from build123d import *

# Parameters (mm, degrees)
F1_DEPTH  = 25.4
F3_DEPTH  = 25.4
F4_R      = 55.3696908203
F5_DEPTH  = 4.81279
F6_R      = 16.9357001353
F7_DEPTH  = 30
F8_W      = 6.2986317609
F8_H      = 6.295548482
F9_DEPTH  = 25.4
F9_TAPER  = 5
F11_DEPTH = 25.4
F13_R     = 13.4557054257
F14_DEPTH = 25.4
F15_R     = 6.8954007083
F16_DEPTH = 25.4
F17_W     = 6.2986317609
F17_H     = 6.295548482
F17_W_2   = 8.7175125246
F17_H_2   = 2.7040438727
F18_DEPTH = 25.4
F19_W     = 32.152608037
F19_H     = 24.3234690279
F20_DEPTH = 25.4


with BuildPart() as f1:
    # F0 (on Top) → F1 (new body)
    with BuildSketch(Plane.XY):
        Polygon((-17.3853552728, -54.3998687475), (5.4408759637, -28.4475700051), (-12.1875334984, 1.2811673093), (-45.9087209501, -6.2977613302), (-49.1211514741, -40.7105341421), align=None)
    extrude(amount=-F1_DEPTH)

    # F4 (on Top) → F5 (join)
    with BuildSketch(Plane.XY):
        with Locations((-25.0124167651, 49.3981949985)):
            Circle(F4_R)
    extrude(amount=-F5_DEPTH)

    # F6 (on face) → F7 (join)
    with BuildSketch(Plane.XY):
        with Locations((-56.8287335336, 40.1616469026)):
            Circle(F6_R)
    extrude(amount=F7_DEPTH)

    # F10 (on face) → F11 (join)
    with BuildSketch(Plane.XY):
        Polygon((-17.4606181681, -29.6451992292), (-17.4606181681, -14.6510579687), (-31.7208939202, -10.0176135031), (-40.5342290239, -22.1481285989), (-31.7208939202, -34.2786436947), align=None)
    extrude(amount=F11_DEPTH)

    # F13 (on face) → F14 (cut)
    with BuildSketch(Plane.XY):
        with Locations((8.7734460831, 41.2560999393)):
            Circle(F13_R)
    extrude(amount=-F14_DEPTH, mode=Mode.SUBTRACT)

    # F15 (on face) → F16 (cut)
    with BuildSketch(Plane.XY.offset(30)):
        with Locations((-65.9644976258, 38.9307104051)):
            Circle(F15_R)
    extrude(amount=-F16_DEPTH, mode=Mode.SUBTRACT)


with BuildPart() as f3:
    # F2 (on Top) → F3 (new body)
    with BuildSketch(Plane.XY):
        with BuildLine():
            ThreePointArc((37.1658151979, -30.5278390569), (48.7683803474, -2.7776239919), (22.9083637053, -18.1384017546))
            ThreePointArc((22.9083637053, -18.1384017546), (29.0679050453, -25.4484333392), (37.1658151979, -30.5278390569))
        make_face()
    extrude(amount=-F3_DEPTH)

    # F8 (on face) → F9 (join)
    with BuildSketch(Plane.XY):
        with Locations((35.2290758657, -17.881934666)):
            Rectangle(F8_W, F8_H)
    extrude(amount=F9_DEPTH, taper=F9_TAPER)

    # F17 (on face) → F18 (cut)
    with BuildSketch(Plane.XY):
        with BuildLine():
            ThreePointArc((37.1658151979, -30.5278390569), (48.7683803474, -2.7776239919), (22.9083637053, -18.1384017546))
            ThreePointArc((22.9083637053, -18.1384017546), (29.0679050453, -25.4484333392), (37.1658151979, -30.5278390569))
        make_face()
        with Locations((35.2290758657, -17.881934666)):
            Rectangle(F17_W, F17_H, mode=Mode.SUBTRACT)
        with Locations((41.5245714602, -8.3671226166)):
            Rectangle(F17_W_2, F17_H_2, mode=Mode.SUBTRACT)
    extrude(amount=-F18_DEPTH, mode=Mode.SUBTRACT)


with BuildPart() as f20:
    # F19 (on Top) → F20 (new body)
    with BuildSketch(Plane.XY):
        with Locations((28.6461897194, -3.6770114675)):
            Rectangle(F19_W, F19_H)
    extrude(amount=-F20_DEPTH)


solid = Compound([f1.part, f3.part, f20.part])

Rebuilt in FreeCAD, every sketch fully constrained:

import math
import FreeCAD as App
import Part
import Sketcher
Q = App.Units.Quantity

doc = App.newDocument("Part")
body = doc.addObject("PartDesign::Body", "Body")

# Sketch on XY plane
sketch1 = body.newObject("Sketcher::SketchObject", "Sketch")
sketch1.AttachmentSupport = (doc.getObject("XY_Plane"), [""])
sketch1.MapMode = "FlatFace"
sketch1.addGeometry(Part.LineSegment(App.Vector(-17, -54, 0), App.Vector(5, -28, 0)), False)
sketch1.addGeometry(Part.LineSegment(App.Vector(5, -28, 0), App.Vector(-12, 1, 0)), False)
sketch1.addGeometry(Part.LineSegment(App.Vector(-12, 1, 0), App.Vector(-46, -6, 0)), False)
sketch1.addGeometry(Part.LineSegment(App.Vector(-46, -6, 0), App.Vector(-49, -41, 0)), False)
sketch1.addGeometry(Part.LineSegment(App.Vector(-49, -41, 0), App.Vector(-17, -54, 0)), False)
sketch1.addConstraint(Sketcher.Constraint("Coincident", 0, 2, 1, 1))
sketch1.addConstraint(Sketcher.Constraint("Coincident", 1, 2, 2, 1))
sketch1.addConstraint(Sketcher.Constraint("Coincident", 2, 2, 3, 1))
sketch1.addConstraint(Sketcher.Constraint("Coincident", 3, 2, 4, 1))
sketch1.addConstraint(Sketcher.Constraint("Coincident", 4, 2, 0, 1))
sketch1.addConstraint(Sketcher.Constraint("Equal", 0, 1))
sketch1.addConstraint(Sketcher.Constraint("Equal", 1, 2))
sketch1.addConstraint(Sketcher.Constraint("Equal", 2, 3))
sketch1.addConstraint(Sketcher.Constraint("Equal", 3, 4))
sketch1.addConstraint(Sketcher.Constraint("DistanceY", 3, 2, 1, 2, Q("41.991701 mm")))
sketch1.addConstraint(Sketcher.Constraint("DistanceY", 4, 2, 0, 2, Q("25.952299 mm")))
sketch1.addConstraint(Sketcher.Constraint("DistanceY", 0, 2, -1, 1, Q("28.44757 mm")))
sketch1.addConstraint(Sketcher.Constraint("DistanceX", 2, 2, -1, 1, Q("45.908721 mm")))
sketch1.addConstraint(Sketcher.Constraint("DistanceY", 2, 2, -1, 1, Q("6.297761 mm")))
sketch1.addConstraint(Sketcher.Constraint("DistanceX", 3, 2, -1, 1, Q("49.121151 mm")))
pad1 = body.newObject("PartDesign::Pad", "Pad")
pad1.Profile = sketch1
pad1.Length = 25.4
pad1.Reversed = True

# Sketch on XY plane
sketch2 = body.newObject("Sketcher::SketchObject", "Sketch001")
sketch2.AttachmentSupport = (doc.getObject("XY_Plane"), [""])
sketch2.MapMode = "FlatFace"
sketch2.addGeometry(Part.Circle(App.Vector(-25, 49, 0), App.Vector(0, 0, 1), 55), False)
sketch2.addConstraint(Sketcher.Constraint("Diameter", 0, Q("110.739382 mm")))
sketch2.addConstraint(Sketcher.Constraint("DistanceX", 0, 3, -1, 1, Q("25.012417 mm")))
sketch2.addConstraint(Sketcher.Constraint("DistanceY", -1, 1, 0, 3, Q("49.398195 mm")))
pad2 = body.newObject("PartDesign::Pad", "Pad001")
pad2.Profile = sketch2
pad2.Length = 4.81279
pad2.Reversed = True

# Sketch on XY plane
sketch3 = body.newObject("Sketcher::SketchObject", "Sketch002")
sketch3.AttachmentSupport = (doc.getObject("XY_Plane"), [""])
sketch3.MapMode = "FlatFace"
sketch3.addGeometry(Part.Circle(App.Vector(-57, 40, 0), App.Vector(0, 0, 1), 17), False)
sketch3.addConstraint(Sketcher.Constraint("Diameter", 0, Q("33.8714 mm")))
sketch3.addConstraint(Sketcher.Constraint("DistanceX", 0, 3, -1, 1, Q("56.828734 mm")))
sketch3.addConstraint(Sketcher.Constraint("DistanceY", -1, 1, 0, 3, Q("40.161647 mm")))
pad3 = body.newObject("PartDesign::Pad", "Pad002")
pad3.Profile = sketch3
pad3.Length = 30

# Sketch on XY plane
sketch4 = body.newObject("Sketcher::SketchObject", "Sketch003")
sketch4.AttachmentSupport = (doc.getObject("XY_Plane"), [""])
sketch4.MapMode = "FlatFace"
sketch4.addGeometry(Part.LineSegment(App.Vector(-17, -30, 0), App.Vector(-17, -15, 0)), False)
sketch4.addGeometry(Part.LineSegment(App.Vector(-17, -15, 0), App.Vector(-32, -10, 0)), False)
sketch4.addGeometry(Part.LineSegment(App.Vector(-32, -10, 0), App.Vector(-41, -22, 0)), False)
sketch4.addGeometry(Part.LineSegment(App.Vector(-41, -22, 0), App.Vector(-32, -34, 0)), False)
sketch4.addGeometry(Part.LineSegment(App.Vector(-32, -34, 0), App.Vector(-17, -30, 0)), False)
sketch4.addConstraint(Sketcher.Constraint("Coincident", 0, 2, 1, 1))
sketch4.addConstraint(Sketcher.Constraint("Coincident", 1, 2, 2, 1))
sketch4.addConstraint(Sketcher.Constraint("Coincident", 2, 2, 3, 1))
sketch4.addConstraint(Sketcher.Constraint("Coincident", 3, 2, 4, 1))
sketch4.addConstraint(Sketcher.Constraint("Coincident", 4, 2, 0, 1))
sketch4.addConstraint(Sketcher.Constraint("Vertical", 0))
sketch4.addConstraint(Sketcher.Constraint("Vertical", 1, 2, 3, 2))
sketch4.addConstraint(Sketcher.Constraint("Equal", 1, 2))
sketch4.addConstraint(Sketcher.Constraint("Equal", 2, 3))
sketch4.addConstraint(Sketcher.Constraint("Equal", 3, 4))
sketch4.addConstraint(Sketcher.Constraint("Angle", 1, Q("162 deg")))
sketch4.addConstraint(Sketcher.Constraint("Angle", 2, Q("-126 deg")))
sketch4.addConstraint(Sketcher.Constraint("DistanceY", 0, 1, 0, 2, Q("14.994141 mm")))
sketch4.addConstraint(Sketcher.Constraint("DistanceY", 4, 2, -1, 1, Q("29.645199 mm")))
sketch4.addConstraint(Sketcher.Constraint("DistanceX", 0, 2, -1, 1, Q("17.460618 mm")))
pad4 = body.newObject("PartDesign::Pad", "Pad003")
pad4.Profile = sketch4
pad4.Length = 25.4

# Sketch on XY plane
sketch5 = body.newObject("Sketcher::SketchObject", "Sketch004")
sketch5.AttachmentSupport = (doc.getObject("XY_Plane"), [""])
sketch5.MapMode = "FlatFace"
sketch5.addGeometry(Part.Circle(App.Vector(9, 41, 0), App.Vector(0, 0, 1), 13), False)
sketch5.addConstraint(Sketcher.Constraint("Diameter", 0, Q("26.911411 mm")))
sketch5.addConstraint(Sketcher.Constraint("DistanceY", -1, 1, 0, 3, Q("41.2561 mm")))
sketch5.addConstraint(Sketcher.Constraint("DistanceX", -1, 1, 0, 3, Q("8.773446 mm")))
pocket1 = body.newObject("PartDesign::Pocket", "Pocket")
pocket1.Profile = sketch5
pocket1.Length = 25.4

# Sketch on XY plane
sketch6 = body.newObject("Sketcher::SketchObject", "Sketch005")
sketch6.AttachmentSupport = (doc.getObject("XY_Plane"), [""])
sketch6.MapMode = "FlatFace"
sketch6.AttachmentOffset = App.Placement(App.Vector(0, 0, 30), App.Rotation())
sketch6.addGeometry(Part.Circle(App.Vector(-66, 39, 0), App.Vector(0, 0, 1), 7), False)
sketch6.addConstraint(Sketcher.Constraint("Diameter", 0, Q("13.790801 mm")))
sketch6.addConstraint(Sketcher.Constraint("DistanceY", -1, 1, 0, 3, Q("38.93071 mm")))
sketch6.addConstraint(Sketcher.Constraint("DistanceX", 0, 3, -1, 1, Q("65.964498 mm")))
pocket2 = body.newObject("PartDesign::Pocket", "Pocket001")
pocket2.Profile = sketch6
pocket2.Length = 25.4
body2 = doc.addObject("PartDesign::Body", "Body001")
body2.AllowCompound = True

# Sketch on XY plane
sketch7 = body2.newObject("Sketcher::SketchObject", "Sketch006")
sketch7.AttachmentSupport = (doc.getObject("XY_Plane001"), [""])
sketch7.MapMode = "FlatFace"
sketch7.addGeometry(Part.ArcOfCircle(Part.Circle(App.Vector(38, -15, 0), App.Vector(0, 0, 1), 16), math.radians(-94), math.radians(192)), False)
sketch7.addGeometry(Part.ArcOfCircle(Part.Circle(App.Vector(49, -2, 0), App.Vector(0, 0, 1), 31), math.radians(-149), math.radians(-113)), False)
sketch7.addConstraint(Sketcher.Constraint("Coincident", 0, 1, 1, 2))
sketch7.addConstraint(Sketcher.Constraint("Coincident", 1, 1, 0, 2))
sketch7.addConstraint(Sketcher.Constraint("Radius", 0, Q("15.840159 mm")))
sketch7.addConstraint(Sketcher.Constraint("Radius", 1, Q("30.921012 mm")))
sketch7.addConstraint(Sketcher.Constraint("DistanceY", 1, 1, -1, 1, Q("18.138402 mm")))
sketch7.addConstraint(Sketcher.Constraint("DistanceY", 1, 1, 1, 3, Q("16.029899 mm")))
sketch7.addConstraint(Sketcher.Constraint("DistanceX", -1, 1, 0, 3, Q("38.378392 mm")))
sketch7.addConstraint(Sketcher.Constraint("DistanceY", 0, 3, -1, 1, Q("14.73416 mm")))
pad5 = body2.newObject("PartDesign::Pad", "Pad004")
pad5.Profile = sketch7
pad5.Length = 25.4
pad5.Reversed = True

# Sketch on XY plane
sketch8 = body2.newObject("Sketcher::SketchObject", "Sketch007")
sketch8.AttachmentSupport = (doc.getObject("XY_Plane001"), [""])
sketch8.MapMode = "FlatFace"
sketch8.addGeometry(Part.LineSegment(App.Vector(32, -15, 0), App.Vector(32, -21, 0)), False)
sketch8.addGeometry(Part.LineSegment(App.Vector(32, -21, 0), App.Vector(38, -21, 0)), False)
sketch8.addGeometry(Part.LineSegment(App.Vector(38, -21, 0), App.Vector(38, -15, 0)), False)
sketch8.addGeometry(Part.LineSegment(App.Vector(38, -15, 0), App.Vector(32, -15, 0)), False)
sketch8.addConstraint(Sketcher.Constraint("Coincident", 0, 2, 1, 1))
sketch8.addConstraint(Sketcher.Constraint("Coincident", 1, 2, 2, 1))
sketch8.addConstraint(Sketcher.Constraint("Coincident", 2, 2, 3, 1))
sketch8.addConstraint(Sketcher.Constraint("Coincident", 3, 2, 0, 1))
sketch8.addConstraint(Sketcher.Constraint("Vertical", 0))
sketch8.addConstraint(Sketcher.Constraint("Horizontal", 1))
sketch8.addConstraint(Sketcher.Constraint("Vertical", 2))
sketch8.addConstraint(Sketcher.Constraint("Horizontal", 3))
sketch8.addConstraint(Sketcher.Constraint("DistanceX", 1, 1, 1, 2, Q("6.298632 mm")))
sketch8.addConstraint(Sketcher.Constraint("DistanceY", 0, 2, 0, 1, Q("6.295548 mm")))
sketch8.addConstraint(Sketcher.Constraint("DistanceX", -1, 1, 0, 2, Q("32.07976 mm")))
sketch8.addConstraint(Sketcher.Constraint("DistanceY", 0, 2, -1, 1, Q("21.029709 mm")))
pad6 = body2.newObject("PartDesign::Pad", "Pad005")
pad6.Profile = sketch8
pad6.Length = 25.4
pad6.TaperAngle = -5

# Sketch on XY plane
sketch9 = body2.newObject("Sketcher::SketchObject", "Sketch008")
sketch9.AttachmentSupport = (doc.getObject("XY_Plane001"), [""])
sketch9.MapMode = "FlatFace"
sketch9.addGeometry(Part.ArcOfCircle(Part.Circle(App.Vector(38.4, -14.7, 0), App.Vector(0, 0, 1), 15.8), math.radians(-94), math.radians(192)), False)
sketch9.addGeometry(Part.ArcOfCircle(Part.Circle(App.Vector(49.3, -2.1, 0), App.Vector(0, 0, 1), 30.9), math.radians(-149), math.radians(-113)), False)
sketch9.addGeometry(Part.LineSegment(App.Vector(38.4, -21, 0), App.Vector(32.1, -21, 0)), False)
sketch9.addGeometry(Part.LineSegment(App.Vector(32.1, -21, 0), App.Vector(32.1, -14.7, 0)), False)
sketch9.addGeometry(Part.LineSegment(App.Vector(32.1, -14.7, 0), App.Vector(38.4, -14.7, 0)), False)
sketch9.addGeometry(Part.LineSegment(App.Vector(38.4, -14.7, 0), App.Vector(38.4, -21, 0)), False)
sketch9.addGeometry(Part.LineSegment(App.Vector(45.9, -9.7, 0), App.Vector(37.2, -9.7, 0)), False)
sketch9.addGeometry(Part.LineSegment(App.Vector(37.2, -9.7, 0), App.Vector(37.2, -7, 0)), False)
sketch9.addGeometry(Part.LineSegment(App.Vector(37.2, -7, 0), App.Vector(45.9, -7, 0)), False)
sketch9.addGeometry(Part.LineSegment(App.Vector(45.9, -7, 0), App.Vector(45.9, -9.7, 0)), False)
sketch9.addConstraint(Sketcher.Constraint("Coincident", 0, 1, 1, 2))
sketch9.addConstraint(Sketcher.Constraint("Coincident", 1, 1, 0, 2))
sketch9.addConstraint(Sketcher.Constraint("Coincident", 2, 2, 3, 1))
sketch9.addConstraint(Sketcher.Constraint("Coincident", 3, 2, 4, 1))
sketch9.addConstraint(Sketcher.Constraint("Coincident", 4, 2, 5, 1))
sketch9.addConstraint(Sketcher.Constraint("Coincident", 5, 2, 2, 1))
sketch9.addConstraint(Sketcher.Constraint("Coincident", 6, 2, 7, 1))
sketch9.addConstraint(Sketcher.Constraint("Coincident", 7, 2, 8, 1))
sketch9.addConstraint(Sketcher.Constraint("Coincident", 8, 2, 9, 1))
sketch9.addConstraint(Sketcher.Constraint("Coincident", 9, 2, 6, 1))
sketch9.addConstraint(Sketcher.Constraint("Horizontal", 2))
sketch9.addConstraint(Sketcher.Constraint("Vertical", 3))
sketch9.addConstraint(Sketcher.Constraint("Horizontal", 4))
sketch9.addConstraint(Sketcher.Constraint("Vertical", 5))
sketch9.addConstraint(Sketcher.Constraint("Horizontal", 6))
sketch9.addConstraint(Sketcher.Constraint("Vertical", 7))
sketch9.addConstraint(Sketcher.Constraint("Horizontal", 8))
sketch9.addConstraint(Sketcher.Constraint("Vertical", 9))
sketch9.addConstraint(Sketcher.Constraint("Coincident", 4, 2, 0, 3))
sketch9.addConstraint(Sketcher.Constraint("Vertical", 0, 1, 6, 2))
sketch9.addConstraint(Sketcher.Constraint("Radius", 0, Q("15.840159 mm")))
sketch9.addConstraint(Sketcher.Constraint("Radius", 1, Q("30.921012 mm")))
sketch9.addConstraint(Sketcher.Constraint("DistanceX", 2, 2, 2, 1, Q("6.298632 mm")))
sketch9.addConstraint(Sketcher.Constraint("DistanceY", 3, 1, 3, 2, Q("6.295548 mm")))
sketch9.addConstraint(Sketcher.Constraint("DistanceY", 1, 1, -1, 1, Q("18.138402 mm")))
sketch9.addConstraint(Sketcher.Constraint("DistanceY", 7, 2, -1, 1, Q("7.015101 mm")))
sketch9.addConstraint(Sketcher.Constraint("DistanceY", 1, 1, 1, 3, Q("16.029899 mm")))
sketch9.addConstraint(Sketcher.Constraint("DistanceX", 6, 2, 6, 1, Q("8.717513 mm")))
sketch9.addConstraint(Sketcher.Constraint("DistanceY", 7, 1, 7, 2, Q("2.704044 mm")))
sketch9.addConstraint(Sketcher.Constraint("DistanceX", -1, 1, 0, 3, Q("38.378392 mm")))
sketch9.addConstraint(Sketcher.Constraint("DistanceY", 0, 3, -1, 1, Q("14.73416 mm")))
pocket3 = body2.newObject("PartDesign::Pocket", "Pocket002")
pocket3.Profile = sketch9
pocket3.Length = 25.4
body3 = doc.addObject("PartDesign::Body", "Body002")

# Sketch on XY plane
sketch10 = body3.newObject("Sketcher::SketchObject", "Sketch009")
sketch10.AttachmentSupport = (doc.getObject("XY_Plane002"), [""])
sketch10.MapMode = "FlatFace"
sketch10.addGeometry(Part.LineSegment(App.Vector(13, 8, 0), App.Vector(13, -16, 0)), False)
sketch10.addGeometry(Part.LineSegment(App.Vector(13, -16, 0), App.Vector(45, -16, 0)), False)
sketch10.addGeometry(Part.LineSegment(App.Vector(45, -16, 0), App.Vector(45, 8, 0)), False)
sketch10.addGeometry(Part.LineSegment(App.Vector(45, 8, 0), App.Vector(13, 8, 0)), False)
sketch10.addConstraint(Sketcher.Constraint("Coincident", 0, 2, 1, 1))
sketch10.addConstraint(Sketcher.Constraint("Coincident", 1, 2, 2, 1))
sketch10.addConstraint(Sketcher.Constraint("Coincident", 2, 2, 3, 1))
sketch10.addConstraint(Sketcher.Constraint("Coincident", 3, 2, 0, 1))
sketch10.addConstraint(Sketcher.Constraint("Vertical", 0))
sketch10.addConstraint(Sketcher.Constraint("Horizontal", 1))
sketch10.addConstraint(Sketcher.Constraint("Vertical", 2))
sketch10.addConstraint(Sketcher.Constraint("Horizontal", 3))
sketch10.addConstraint(Sketcher.Constraint("DistanceX", 1, 1, 1, 2, Q("32.152608 mm")))
sketch10.addConstraint(Sketcher.Constraint("DistanceY", 0, 2, 0, 1, Q("24.323469 mm")))
sketch10.addConstraint(Sketcher.Constraint("DistanceX", -1, 1, 0, 2, Q("12.569886 mm")))
sketch10.addConstraint(Sketcher.Constraint("DistanceY", 0, 2, -1, 1, Q("15.838746 mm")))
pad7 = body3.newObject("PartDesign::Pad", "Pad006")
pad7.Profile = sketch10
pad7.Length = 25.4
pad7.Reversed = True

doc.recompute()
